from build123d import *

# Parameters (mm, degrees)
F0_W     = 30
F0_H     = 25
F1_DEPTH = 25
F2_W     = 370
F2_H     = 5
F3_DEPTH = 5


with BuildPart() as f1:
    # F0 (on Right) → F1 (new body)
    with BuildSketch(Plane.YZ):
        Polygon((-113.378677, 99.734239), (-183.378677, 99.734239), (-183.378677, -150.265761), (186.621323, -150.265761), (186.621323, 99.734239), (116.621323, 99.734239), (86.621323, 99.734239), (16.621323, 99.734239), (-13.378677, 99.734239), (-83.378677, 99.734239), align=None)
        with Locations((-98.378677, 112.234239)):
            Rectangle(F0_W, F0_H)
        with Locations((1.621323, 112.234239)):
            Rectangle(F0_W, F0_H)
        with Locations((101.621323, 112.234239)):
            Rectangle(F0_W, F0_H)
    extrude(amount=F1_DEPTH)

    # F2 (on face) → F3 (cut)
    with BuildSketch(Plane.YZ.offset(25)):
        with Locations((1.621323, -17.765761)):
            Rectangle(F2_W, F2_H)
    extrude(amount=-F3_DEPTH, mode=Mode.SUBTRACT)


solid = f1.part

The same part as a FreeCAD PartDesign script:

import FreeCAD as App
import Part
import Sketcher
Q = App.Units.Quantity

doc = App.newDocument("Part")
body = doc.addObject("PartDesign::Body", "Body")

sketch1 = body.newObject("Sketcher::SketchObject", "Sketch")
sketch1.AttachmentSupport = (doc.getObject("YZ_Plane"), [""])
sketch1.MapMode = "FlatFace"
sketch1.addGeometry([
    Part.LineSegment(App.Vector(-183, 100, 0), App.Vector(-183, -150, 0)),
    Part.LineSegment(App.Vector(-183, -150, 0), App.Vector(187, -150, 0)),
    Part.LineSegment(App.Vector(187, -150, 0), App.Vector(187, 100, 0)),
    Part.LineSegment(App.Vector(187, 100, 0), App.Vector(117, 100, 0)),
    Part.LineSegment(App.Vector(117, 100, 0), App.Vector(117, 125, 0)),
    Part.LineSegment(App.Vector(117, 125, 0), App.Vector(87, 125, 0)),
    Part.LineSegment(App.Vector(87, 125, 0), App.Vector(87, 100, 0)),
    Part.LineSegment(App.Vector(87, 100, 0), App.Vector(17, 100, 0)),
    Part.LineSegment(App.Vector(17, 100, 0), App.Vector(17, 125, 0)),
    Part.LineSegment(App.Vector(17, 125, 0), App.Vector(-13, 125, 0)),
    Part.LineSegment(App.Vector(-13, 125, 0), App.Vector(-13, 100, 0)),
    Part.LineSegment(App.Vector(-13, 100, 0), App.Vector(-83, 100, 0)),
    Part.LineSegment(App.Vector(-83, 100, 0), App.Vector(-83, 125, 0)),
    Part.LineSegment(App.Vector(-83, 125, 0), App.Vector(-113, 125, 0)),
    Part.LineSegment(App.Vector(-113, 125, 0), App.Vector(-113, 100, 0)),
    Part.LineSegment(App.Vector(-113, 100, 0), App.Vector(-183, 100, 0)),
], False)
sketch1.addConstraint([
    Sketcher.Constraint("Coincident", 0, 2, 1, 1),
    Sketcher.Constraint("Coincident", 1, 2, 2, 1),
    Sketcher.Constraint("Coincident", 2, 2, 3, 1),
    Sketcher.Constraint("Coincident", 3, 2, 4, 1),
    Sketcher.Constraint("Coincident", 4, 2, 5, 1),
    Sketcher.Constraint("Coincident", 5, 2, 6, 1),
    Sketcher.Constraint("Coincident", 6, 2, 7, 1),
    Sketcher.Constraint("Coincident", 7, 2, 8, 1),
    Sketcher.Constraint("Coincident", 8, 2, 9, 1),
    Sketcher.Constraint("Coincident", 9, 2, 10, 1),
    Sketcher.Constraint("Coincident", 10, 2, 11, 1),
    Sketcher.Constraint("Coincident", 11, 2, 12, 1),
    Sketcher.Constraint("Coincident", 12, 2, 13, 1),
    Sketcher.Constraint("Coincident", 13, 2, 14, 1),
    Sketcher.Constraint("Coincident", 14, 2, 15, 1),
    Sketcher.Constraint("Coincident", 15, 2, 0, 1),
    Sketcher.Constraint("Vertical", 0),
    Sketcher.Constraint("Horizontal", 1),
    Sketcher.Constraint("Vertical", 2),
    Sketcher.Constraint("Horizontal", 3),
    Sketcher.Constraint("Vertical", 4),
    Sketcher.Constraint("Horizontal", 5),
    Sketcher.Constraint("Vertical", 6),
    Sketcher.Constraint("Horizontal", 7),
    Sketcher.Constraint("Vertical", 8),
    Sketcher.Constraint("Horizontal", 9),
    Sketcher.Constraint("Vertical", 10),
    Sketcher.Constraint("Horizontal", 11),
    Sketcher.Constraint("Vertical", 12),
    Sketcher.Constraint("Horizontal", 13),
    Sketcher.Constraint("Vertical", 14),
    Sketcher.Constraint("Horizontal", 15),
    Sketcher.Constraint("Horizontal", 3, 2, 6, 2),
    Sketcher.Constraint("Horizontal", 5, 2, 8, 2),
    Sketcher.Constraint("Horizontal", 7, 2, 10, 2),
    Sketcher.Constraint("Horizontal", 9, 2, 12, 2),
    Sketcher.Constraint("Horizontal", 11, 2, 14, 2),
    Sketcher.Constraint("Equal", 3, 7),
    Sketcher.Constraint("Equal", 5, 9),
    Sketcher.Constraint("Equal", 7, 11),
    Sketcher.Constraint("Equal", 9, 13),
    Sketcher.Constraint("Equal", 11, 15),
    Sketcher.Constraint("DistanceX", 1, 1, 1, 2, Q("370 mm")),
    Sketcher.Constraint("DistanceX", 3, 2, 3, 1, Q("70 mm")),
    Sketcher.Constraint("DistanceY", 0, 2, 0, 1, Q("250 mm")),
    Sketcher.Constraint("DistanceY", 4, 1, 4, 2, Q("25 mm")),
    Sketcher.Constraint("DistanceY", 0, 2, -1, 1, Q("150.265761 mm")),
    Sketcher.Constraint("DistanceX", 0, 2, -1, 1, Q("183.378677 mm")),
])
pad1 = body.newObject("PartDesign::Pad", "Pad")
pad1.Profile = sketch1
pad1.Length = 25

sketch2 = body.newObject("Sketcher::SketchObject", "Sketch001")
sketch2.AttachmentSupport = (doc.getObject("YZ_Plane"), [""])
sketch2.MapMode = "FlatFace"
sketch2.AttachmentOffset = App.Placement(App.Vector(0, 0, 25), App.Rotation())
sketch2.addGeometry([
    Part.LineSegment(App.Vector(-183, -15, 0), App.Vector(-183, -20, 0)),
    Part.LineSegment(App.Vector(-183, -20, 0), App.Vector(187, -20, 0)),
    Part.LineSegment(App.Vector(187, -20, 0), App.Vector(187, -15, 0)),
    Part.LineSegment(App.Vector(187, -15, 0), App.Vector(-183, -15, 0)),
], False)
sketch2.addConstraint([
    Sketcher.Constraint("Coincident", 0, 2, 1, 1),
    Sketcher.Constraint("Coincident", 1, 2, 2, 1),
    Sketcher.Constraint("Coincident", 2, 2, 3, 1),
    Sketcher.Constraint("Coincident", 3, 2, 0, 1),
    Sketcher.Constraint("Vertical", 0),
    Sketcher.Constraint("Horizontal", 1),
    Sketcher.Constraint("Vertical", 2),
    Sketcher.Constraint("Horizontal", 3),
    Sketcher.Constraint("DistanceX", 1, 1, 1, 2, Q("370 mm")),
    Sketcher.Constraint("DistanceY", 0, 2, 0, 1, Q("5 mm")),
    Sketcher.Constraint("DistanceY", 0, 2, -1, 1, Q("20.265761 mm")),
    Sketcher.Constraint("DistanceX", 0, 2, -1, 1, Q("183.378677 mm")),
])
pocket1 = body.newObject("PartDesign::Pocket", "Pocket")
pocket1.Profile = sketch2
pocket1.Length = 5

doc.recompute()
